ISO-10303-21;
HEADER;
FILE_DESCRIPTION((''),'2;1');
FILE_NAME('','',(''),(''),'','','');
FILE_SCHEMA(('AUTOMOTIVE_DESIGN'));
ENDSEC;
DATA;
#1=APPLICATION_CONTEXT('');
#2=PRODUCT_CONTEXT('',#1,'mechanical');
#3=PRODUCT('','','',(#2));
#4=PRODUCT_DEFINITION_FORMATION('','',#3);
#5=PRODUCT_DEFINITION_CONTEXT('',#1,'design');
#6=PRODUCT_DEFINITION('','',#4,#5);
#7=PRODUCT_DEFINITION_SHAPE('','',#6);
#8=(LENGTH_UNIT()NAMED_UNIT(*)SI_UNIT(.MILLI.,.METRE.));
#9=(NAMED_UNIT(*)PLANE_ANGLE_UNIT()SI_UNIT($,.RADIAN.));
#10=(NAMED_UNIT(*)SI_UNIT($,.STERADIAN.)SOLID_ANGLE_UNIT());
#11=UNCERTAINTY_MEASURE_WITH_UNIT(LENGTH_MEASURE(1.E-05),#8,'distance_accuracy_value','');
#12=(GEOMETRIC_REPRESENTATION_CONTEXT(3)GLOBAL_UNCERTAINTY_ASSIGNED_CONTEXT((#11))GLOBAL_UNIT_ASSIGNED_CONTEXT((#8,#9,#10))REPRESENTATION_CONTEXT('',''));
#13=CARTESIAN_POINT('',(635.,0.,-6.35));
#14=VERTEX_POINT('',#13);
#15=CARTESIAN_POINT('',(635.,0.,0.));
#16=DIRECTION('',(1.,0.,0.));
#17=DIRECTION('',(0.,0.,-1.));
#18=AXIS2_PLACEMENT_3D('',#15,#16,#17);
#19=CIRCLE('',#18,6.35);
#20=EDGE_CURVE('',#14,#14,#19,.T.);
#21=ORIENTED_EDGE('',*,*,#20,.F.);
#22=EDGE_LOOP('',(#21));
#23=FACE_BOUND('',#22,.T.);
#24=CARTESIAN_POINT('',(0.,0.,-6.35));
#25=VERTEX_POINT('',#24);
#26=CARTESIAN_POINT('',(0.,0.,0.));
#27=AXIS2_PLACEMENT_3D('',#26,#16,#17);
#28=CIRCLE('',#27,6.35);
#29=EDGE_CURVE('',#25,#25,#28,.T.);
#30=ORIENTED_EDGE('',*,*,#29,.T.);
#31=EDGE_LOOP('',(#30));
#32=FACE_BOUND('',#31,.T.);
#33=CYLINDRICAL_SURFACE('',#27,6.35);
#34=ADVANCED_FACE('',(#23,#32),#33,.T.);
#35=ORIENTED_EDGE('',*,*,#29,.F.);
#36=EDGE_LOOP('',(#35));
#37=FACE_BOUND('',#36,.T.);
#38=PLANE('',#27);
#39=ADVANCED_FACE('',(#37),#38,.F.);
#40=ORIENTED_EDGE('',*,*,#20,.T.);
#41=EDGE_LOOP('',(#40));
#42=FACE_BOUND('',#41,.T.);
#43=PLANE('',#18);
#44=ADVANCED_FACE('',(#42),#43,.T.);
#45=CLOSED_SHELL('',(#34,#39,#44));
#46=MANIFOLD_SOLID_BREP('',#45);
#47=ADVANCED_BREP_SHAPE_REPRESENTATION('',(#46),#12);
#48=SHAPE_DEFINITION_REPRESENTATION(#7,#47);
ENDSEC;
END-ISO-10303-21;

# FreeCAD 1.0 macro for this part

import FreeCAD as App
import Part
import Sketcher
Q = App.Units.Quantity

doc = App.newDocument("Part")
body = doc.addObject("PartDesign::Body", "Body")

sketch1 = body.newObject("Sketcher::SketchObject", "Sketch")
sketch1.AttachmentSupport = (doc.getObject("YZ_Plane"), [""])
sketch1.MapMode = "FlatFace"
sketch1.addGeometry(Part.Circle(App.Vector(0, 0, 0), App.Vector(0, 0, 1), 6.35), False)
sketch1.addConstraint([
    Sketcher.Constraint("Coincident", 0, 3, -1, 1),
    Sketcher.Constraint("Diameter", 0, Q("0.5 in")),
])

sketch2 = body.newObject("Sketcher::SketchObject", "Sketch001")
sketch2.AttachmentSupport = (doc.getObject("XY_Plane"), [""])
sketch2.MapMode = "FlatFace"
sketch2.addGeometry(Part.LineSegment(App.Vector(0, 0, 0), App.Vector(635, 0, 0)), False)
sketch2.addConstraint([
    Sketcher.Constraint("Horizontal", 0),
    Sketcher.Constraint("Coincident", 0, 1, -1, 1),
    Sketcher.Constraint("DistanceX", 0, 1, 0, 2, Q("25 in")),
])
doc.recompute()

additivepipe = body.newObject("PartDesign::AdditivePipe", "AdditivePipe")
additivepipe.Profile = sketch1
additivepipe.Spine = (sketch2, ["Edge1"])

doc.recompute()
